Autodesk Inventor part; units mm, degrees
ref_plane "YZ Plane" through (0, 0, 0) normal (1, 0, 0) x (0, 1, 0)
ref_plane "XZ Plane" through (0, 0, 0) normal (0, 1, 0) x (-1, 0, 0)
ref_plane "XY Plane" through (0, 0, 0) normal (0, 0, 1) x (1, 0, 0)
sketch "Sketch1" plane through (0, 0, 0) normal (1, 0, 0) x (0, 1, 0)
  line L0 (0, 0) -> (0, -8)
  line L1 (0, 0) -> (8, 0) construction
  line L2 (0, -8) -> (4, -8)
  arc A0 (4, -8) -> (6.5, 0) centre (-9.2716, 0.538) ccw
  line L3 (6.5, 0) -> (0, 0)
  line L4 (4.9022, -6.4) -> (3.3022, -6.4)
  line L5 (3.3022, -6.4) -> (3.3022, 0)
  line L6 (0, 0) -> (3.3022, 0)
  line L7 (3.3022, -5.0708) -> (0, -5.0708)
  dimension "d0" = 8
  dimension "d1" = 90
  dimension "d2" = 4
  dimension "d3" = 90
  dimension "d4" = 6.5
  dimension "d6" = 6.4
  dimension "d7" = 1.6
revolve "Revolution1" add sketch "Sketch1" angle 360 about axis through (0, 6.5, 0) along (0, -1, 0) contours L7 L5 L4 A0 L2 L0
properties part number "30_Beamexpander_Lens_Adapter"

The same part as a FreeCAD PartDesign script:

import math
import FreeCAD as App
import Part
import Sketcher
from FreeCAD import Vector
Q = App.Units.Quantity

doc = App.newDocument("Part")
body = doc.addObject("PartDesign::Body", "Body")

# Sketch on YZ plane
sketch1 = doc.addObject("Sketcher::SketchObject", "Sketch")
body.addObject(sketch1)
sketch1.AttachmentSupport = (doc.YZ_Plane, [""])
sketch1.MapMode = "FlatFace"
sketch1.addGeometry(Part.LineSegment(Vector(3.3, -5.1, 0), Vector(0, -5.1, 0)), False)
sketch1.addGeometry(Part.LineSegment(Vector(0, -5.1, 0), Vector(0, -8, 0)), False)
sketch1.addGeometry(Part.LineSegment(Vector(0, -8, 0), Vector(4, -8, 0)), False)
sketch1.addGeometry(Part.ArcOfCircle(Part.Circle(Vector(-9.3, 0.5, 0), Vector(0, 0, 1), 15.8), math.radians(-32.75), math.radians(-26.08)), False)
sketch1.addGeometry(Part.LineSegment(Vector(4.9, -6.4, 0), Vector(3.3, -6.4, 0)), False)
sketch1.addGeometry(Part.LineSegment(Vector(3.3, -6.4, 0), Vector(3.3, -5.1, 0)), False)
sketch1.addConstraint(Sketcher.Constraint("Coincident", 0, 2, 1, 1))
sketch1.addConstraint(Sketcher.Constraint("Coincident", 1, 2, 2, 1))
sketch1.addConstraint(Sketcher.Constraint("Coincident", 2, 2, 3, 1))
sketch1.addConstraint(Sketcher.Constraint("Coincident", 3, 2, 4, 1))
sketch1.addConstraint(Sketcher.Constraint("Coincident", 4, 2, 5, 1))
sketch1.addConstraint(Sketcher.Constraint("Coincident", 5, 2, 0, 1))
sketch1.addConstraint(Sketcher.Constraint("Horizontal", 0))
sketch1.addConstraint(Sketcher.Constraint("Vertical", 1))
sketch1.addConstraint(Sketcher.Constraint("Horizontal", 2))
sketch1.addConstraint(Sketcher.Constraint("Horizontal", 4))
sketch1.addConstraint(Sketcher.Constraint("Vertical", 5))
sketch1.addConstraint(Sketcher.Constraint("PointOnObject", 0, 2, -2))
sketch1.addConstraint(Sketcher.Constraint("DistanceX", 4, 2, 4, 1, Q("0.063 in")))
sketch1.addConstraint(Sketcher.Constraint("DistanceY", 2, 2, 3, 2, Q("0.063 in")))
sketch1.addConstraint(Sketcher.Constraint("DistanceX", 0, 2, 0, 1, Q("0.13 in")))
sketch1.addConstraint(Sketcher.Constraint("DistanceX", 2, 1, 2, 2, 4.0))
sketch1.addConstraint(Sketcher.Constraint("Radius", 3, Q("0.6213 in")))
sketch1.addConstraint(Sketcher.Constraint("DistanceY", 1, 2, -1, 1, 8.0))
sketch1.addConstraint(Sketcher.Constraint("DistanceY", 1, 2, 1, 1, 2.9292))
revolution = doc.addObject("PartDesign::Revolution", "Revolution")
body.addObject(revolution)
revolution.Profile = sketch1
revolution.ReferenceAxis = (sketch1, ["H_Axis"])
revolution.Angle = 360

doc.recompute()
